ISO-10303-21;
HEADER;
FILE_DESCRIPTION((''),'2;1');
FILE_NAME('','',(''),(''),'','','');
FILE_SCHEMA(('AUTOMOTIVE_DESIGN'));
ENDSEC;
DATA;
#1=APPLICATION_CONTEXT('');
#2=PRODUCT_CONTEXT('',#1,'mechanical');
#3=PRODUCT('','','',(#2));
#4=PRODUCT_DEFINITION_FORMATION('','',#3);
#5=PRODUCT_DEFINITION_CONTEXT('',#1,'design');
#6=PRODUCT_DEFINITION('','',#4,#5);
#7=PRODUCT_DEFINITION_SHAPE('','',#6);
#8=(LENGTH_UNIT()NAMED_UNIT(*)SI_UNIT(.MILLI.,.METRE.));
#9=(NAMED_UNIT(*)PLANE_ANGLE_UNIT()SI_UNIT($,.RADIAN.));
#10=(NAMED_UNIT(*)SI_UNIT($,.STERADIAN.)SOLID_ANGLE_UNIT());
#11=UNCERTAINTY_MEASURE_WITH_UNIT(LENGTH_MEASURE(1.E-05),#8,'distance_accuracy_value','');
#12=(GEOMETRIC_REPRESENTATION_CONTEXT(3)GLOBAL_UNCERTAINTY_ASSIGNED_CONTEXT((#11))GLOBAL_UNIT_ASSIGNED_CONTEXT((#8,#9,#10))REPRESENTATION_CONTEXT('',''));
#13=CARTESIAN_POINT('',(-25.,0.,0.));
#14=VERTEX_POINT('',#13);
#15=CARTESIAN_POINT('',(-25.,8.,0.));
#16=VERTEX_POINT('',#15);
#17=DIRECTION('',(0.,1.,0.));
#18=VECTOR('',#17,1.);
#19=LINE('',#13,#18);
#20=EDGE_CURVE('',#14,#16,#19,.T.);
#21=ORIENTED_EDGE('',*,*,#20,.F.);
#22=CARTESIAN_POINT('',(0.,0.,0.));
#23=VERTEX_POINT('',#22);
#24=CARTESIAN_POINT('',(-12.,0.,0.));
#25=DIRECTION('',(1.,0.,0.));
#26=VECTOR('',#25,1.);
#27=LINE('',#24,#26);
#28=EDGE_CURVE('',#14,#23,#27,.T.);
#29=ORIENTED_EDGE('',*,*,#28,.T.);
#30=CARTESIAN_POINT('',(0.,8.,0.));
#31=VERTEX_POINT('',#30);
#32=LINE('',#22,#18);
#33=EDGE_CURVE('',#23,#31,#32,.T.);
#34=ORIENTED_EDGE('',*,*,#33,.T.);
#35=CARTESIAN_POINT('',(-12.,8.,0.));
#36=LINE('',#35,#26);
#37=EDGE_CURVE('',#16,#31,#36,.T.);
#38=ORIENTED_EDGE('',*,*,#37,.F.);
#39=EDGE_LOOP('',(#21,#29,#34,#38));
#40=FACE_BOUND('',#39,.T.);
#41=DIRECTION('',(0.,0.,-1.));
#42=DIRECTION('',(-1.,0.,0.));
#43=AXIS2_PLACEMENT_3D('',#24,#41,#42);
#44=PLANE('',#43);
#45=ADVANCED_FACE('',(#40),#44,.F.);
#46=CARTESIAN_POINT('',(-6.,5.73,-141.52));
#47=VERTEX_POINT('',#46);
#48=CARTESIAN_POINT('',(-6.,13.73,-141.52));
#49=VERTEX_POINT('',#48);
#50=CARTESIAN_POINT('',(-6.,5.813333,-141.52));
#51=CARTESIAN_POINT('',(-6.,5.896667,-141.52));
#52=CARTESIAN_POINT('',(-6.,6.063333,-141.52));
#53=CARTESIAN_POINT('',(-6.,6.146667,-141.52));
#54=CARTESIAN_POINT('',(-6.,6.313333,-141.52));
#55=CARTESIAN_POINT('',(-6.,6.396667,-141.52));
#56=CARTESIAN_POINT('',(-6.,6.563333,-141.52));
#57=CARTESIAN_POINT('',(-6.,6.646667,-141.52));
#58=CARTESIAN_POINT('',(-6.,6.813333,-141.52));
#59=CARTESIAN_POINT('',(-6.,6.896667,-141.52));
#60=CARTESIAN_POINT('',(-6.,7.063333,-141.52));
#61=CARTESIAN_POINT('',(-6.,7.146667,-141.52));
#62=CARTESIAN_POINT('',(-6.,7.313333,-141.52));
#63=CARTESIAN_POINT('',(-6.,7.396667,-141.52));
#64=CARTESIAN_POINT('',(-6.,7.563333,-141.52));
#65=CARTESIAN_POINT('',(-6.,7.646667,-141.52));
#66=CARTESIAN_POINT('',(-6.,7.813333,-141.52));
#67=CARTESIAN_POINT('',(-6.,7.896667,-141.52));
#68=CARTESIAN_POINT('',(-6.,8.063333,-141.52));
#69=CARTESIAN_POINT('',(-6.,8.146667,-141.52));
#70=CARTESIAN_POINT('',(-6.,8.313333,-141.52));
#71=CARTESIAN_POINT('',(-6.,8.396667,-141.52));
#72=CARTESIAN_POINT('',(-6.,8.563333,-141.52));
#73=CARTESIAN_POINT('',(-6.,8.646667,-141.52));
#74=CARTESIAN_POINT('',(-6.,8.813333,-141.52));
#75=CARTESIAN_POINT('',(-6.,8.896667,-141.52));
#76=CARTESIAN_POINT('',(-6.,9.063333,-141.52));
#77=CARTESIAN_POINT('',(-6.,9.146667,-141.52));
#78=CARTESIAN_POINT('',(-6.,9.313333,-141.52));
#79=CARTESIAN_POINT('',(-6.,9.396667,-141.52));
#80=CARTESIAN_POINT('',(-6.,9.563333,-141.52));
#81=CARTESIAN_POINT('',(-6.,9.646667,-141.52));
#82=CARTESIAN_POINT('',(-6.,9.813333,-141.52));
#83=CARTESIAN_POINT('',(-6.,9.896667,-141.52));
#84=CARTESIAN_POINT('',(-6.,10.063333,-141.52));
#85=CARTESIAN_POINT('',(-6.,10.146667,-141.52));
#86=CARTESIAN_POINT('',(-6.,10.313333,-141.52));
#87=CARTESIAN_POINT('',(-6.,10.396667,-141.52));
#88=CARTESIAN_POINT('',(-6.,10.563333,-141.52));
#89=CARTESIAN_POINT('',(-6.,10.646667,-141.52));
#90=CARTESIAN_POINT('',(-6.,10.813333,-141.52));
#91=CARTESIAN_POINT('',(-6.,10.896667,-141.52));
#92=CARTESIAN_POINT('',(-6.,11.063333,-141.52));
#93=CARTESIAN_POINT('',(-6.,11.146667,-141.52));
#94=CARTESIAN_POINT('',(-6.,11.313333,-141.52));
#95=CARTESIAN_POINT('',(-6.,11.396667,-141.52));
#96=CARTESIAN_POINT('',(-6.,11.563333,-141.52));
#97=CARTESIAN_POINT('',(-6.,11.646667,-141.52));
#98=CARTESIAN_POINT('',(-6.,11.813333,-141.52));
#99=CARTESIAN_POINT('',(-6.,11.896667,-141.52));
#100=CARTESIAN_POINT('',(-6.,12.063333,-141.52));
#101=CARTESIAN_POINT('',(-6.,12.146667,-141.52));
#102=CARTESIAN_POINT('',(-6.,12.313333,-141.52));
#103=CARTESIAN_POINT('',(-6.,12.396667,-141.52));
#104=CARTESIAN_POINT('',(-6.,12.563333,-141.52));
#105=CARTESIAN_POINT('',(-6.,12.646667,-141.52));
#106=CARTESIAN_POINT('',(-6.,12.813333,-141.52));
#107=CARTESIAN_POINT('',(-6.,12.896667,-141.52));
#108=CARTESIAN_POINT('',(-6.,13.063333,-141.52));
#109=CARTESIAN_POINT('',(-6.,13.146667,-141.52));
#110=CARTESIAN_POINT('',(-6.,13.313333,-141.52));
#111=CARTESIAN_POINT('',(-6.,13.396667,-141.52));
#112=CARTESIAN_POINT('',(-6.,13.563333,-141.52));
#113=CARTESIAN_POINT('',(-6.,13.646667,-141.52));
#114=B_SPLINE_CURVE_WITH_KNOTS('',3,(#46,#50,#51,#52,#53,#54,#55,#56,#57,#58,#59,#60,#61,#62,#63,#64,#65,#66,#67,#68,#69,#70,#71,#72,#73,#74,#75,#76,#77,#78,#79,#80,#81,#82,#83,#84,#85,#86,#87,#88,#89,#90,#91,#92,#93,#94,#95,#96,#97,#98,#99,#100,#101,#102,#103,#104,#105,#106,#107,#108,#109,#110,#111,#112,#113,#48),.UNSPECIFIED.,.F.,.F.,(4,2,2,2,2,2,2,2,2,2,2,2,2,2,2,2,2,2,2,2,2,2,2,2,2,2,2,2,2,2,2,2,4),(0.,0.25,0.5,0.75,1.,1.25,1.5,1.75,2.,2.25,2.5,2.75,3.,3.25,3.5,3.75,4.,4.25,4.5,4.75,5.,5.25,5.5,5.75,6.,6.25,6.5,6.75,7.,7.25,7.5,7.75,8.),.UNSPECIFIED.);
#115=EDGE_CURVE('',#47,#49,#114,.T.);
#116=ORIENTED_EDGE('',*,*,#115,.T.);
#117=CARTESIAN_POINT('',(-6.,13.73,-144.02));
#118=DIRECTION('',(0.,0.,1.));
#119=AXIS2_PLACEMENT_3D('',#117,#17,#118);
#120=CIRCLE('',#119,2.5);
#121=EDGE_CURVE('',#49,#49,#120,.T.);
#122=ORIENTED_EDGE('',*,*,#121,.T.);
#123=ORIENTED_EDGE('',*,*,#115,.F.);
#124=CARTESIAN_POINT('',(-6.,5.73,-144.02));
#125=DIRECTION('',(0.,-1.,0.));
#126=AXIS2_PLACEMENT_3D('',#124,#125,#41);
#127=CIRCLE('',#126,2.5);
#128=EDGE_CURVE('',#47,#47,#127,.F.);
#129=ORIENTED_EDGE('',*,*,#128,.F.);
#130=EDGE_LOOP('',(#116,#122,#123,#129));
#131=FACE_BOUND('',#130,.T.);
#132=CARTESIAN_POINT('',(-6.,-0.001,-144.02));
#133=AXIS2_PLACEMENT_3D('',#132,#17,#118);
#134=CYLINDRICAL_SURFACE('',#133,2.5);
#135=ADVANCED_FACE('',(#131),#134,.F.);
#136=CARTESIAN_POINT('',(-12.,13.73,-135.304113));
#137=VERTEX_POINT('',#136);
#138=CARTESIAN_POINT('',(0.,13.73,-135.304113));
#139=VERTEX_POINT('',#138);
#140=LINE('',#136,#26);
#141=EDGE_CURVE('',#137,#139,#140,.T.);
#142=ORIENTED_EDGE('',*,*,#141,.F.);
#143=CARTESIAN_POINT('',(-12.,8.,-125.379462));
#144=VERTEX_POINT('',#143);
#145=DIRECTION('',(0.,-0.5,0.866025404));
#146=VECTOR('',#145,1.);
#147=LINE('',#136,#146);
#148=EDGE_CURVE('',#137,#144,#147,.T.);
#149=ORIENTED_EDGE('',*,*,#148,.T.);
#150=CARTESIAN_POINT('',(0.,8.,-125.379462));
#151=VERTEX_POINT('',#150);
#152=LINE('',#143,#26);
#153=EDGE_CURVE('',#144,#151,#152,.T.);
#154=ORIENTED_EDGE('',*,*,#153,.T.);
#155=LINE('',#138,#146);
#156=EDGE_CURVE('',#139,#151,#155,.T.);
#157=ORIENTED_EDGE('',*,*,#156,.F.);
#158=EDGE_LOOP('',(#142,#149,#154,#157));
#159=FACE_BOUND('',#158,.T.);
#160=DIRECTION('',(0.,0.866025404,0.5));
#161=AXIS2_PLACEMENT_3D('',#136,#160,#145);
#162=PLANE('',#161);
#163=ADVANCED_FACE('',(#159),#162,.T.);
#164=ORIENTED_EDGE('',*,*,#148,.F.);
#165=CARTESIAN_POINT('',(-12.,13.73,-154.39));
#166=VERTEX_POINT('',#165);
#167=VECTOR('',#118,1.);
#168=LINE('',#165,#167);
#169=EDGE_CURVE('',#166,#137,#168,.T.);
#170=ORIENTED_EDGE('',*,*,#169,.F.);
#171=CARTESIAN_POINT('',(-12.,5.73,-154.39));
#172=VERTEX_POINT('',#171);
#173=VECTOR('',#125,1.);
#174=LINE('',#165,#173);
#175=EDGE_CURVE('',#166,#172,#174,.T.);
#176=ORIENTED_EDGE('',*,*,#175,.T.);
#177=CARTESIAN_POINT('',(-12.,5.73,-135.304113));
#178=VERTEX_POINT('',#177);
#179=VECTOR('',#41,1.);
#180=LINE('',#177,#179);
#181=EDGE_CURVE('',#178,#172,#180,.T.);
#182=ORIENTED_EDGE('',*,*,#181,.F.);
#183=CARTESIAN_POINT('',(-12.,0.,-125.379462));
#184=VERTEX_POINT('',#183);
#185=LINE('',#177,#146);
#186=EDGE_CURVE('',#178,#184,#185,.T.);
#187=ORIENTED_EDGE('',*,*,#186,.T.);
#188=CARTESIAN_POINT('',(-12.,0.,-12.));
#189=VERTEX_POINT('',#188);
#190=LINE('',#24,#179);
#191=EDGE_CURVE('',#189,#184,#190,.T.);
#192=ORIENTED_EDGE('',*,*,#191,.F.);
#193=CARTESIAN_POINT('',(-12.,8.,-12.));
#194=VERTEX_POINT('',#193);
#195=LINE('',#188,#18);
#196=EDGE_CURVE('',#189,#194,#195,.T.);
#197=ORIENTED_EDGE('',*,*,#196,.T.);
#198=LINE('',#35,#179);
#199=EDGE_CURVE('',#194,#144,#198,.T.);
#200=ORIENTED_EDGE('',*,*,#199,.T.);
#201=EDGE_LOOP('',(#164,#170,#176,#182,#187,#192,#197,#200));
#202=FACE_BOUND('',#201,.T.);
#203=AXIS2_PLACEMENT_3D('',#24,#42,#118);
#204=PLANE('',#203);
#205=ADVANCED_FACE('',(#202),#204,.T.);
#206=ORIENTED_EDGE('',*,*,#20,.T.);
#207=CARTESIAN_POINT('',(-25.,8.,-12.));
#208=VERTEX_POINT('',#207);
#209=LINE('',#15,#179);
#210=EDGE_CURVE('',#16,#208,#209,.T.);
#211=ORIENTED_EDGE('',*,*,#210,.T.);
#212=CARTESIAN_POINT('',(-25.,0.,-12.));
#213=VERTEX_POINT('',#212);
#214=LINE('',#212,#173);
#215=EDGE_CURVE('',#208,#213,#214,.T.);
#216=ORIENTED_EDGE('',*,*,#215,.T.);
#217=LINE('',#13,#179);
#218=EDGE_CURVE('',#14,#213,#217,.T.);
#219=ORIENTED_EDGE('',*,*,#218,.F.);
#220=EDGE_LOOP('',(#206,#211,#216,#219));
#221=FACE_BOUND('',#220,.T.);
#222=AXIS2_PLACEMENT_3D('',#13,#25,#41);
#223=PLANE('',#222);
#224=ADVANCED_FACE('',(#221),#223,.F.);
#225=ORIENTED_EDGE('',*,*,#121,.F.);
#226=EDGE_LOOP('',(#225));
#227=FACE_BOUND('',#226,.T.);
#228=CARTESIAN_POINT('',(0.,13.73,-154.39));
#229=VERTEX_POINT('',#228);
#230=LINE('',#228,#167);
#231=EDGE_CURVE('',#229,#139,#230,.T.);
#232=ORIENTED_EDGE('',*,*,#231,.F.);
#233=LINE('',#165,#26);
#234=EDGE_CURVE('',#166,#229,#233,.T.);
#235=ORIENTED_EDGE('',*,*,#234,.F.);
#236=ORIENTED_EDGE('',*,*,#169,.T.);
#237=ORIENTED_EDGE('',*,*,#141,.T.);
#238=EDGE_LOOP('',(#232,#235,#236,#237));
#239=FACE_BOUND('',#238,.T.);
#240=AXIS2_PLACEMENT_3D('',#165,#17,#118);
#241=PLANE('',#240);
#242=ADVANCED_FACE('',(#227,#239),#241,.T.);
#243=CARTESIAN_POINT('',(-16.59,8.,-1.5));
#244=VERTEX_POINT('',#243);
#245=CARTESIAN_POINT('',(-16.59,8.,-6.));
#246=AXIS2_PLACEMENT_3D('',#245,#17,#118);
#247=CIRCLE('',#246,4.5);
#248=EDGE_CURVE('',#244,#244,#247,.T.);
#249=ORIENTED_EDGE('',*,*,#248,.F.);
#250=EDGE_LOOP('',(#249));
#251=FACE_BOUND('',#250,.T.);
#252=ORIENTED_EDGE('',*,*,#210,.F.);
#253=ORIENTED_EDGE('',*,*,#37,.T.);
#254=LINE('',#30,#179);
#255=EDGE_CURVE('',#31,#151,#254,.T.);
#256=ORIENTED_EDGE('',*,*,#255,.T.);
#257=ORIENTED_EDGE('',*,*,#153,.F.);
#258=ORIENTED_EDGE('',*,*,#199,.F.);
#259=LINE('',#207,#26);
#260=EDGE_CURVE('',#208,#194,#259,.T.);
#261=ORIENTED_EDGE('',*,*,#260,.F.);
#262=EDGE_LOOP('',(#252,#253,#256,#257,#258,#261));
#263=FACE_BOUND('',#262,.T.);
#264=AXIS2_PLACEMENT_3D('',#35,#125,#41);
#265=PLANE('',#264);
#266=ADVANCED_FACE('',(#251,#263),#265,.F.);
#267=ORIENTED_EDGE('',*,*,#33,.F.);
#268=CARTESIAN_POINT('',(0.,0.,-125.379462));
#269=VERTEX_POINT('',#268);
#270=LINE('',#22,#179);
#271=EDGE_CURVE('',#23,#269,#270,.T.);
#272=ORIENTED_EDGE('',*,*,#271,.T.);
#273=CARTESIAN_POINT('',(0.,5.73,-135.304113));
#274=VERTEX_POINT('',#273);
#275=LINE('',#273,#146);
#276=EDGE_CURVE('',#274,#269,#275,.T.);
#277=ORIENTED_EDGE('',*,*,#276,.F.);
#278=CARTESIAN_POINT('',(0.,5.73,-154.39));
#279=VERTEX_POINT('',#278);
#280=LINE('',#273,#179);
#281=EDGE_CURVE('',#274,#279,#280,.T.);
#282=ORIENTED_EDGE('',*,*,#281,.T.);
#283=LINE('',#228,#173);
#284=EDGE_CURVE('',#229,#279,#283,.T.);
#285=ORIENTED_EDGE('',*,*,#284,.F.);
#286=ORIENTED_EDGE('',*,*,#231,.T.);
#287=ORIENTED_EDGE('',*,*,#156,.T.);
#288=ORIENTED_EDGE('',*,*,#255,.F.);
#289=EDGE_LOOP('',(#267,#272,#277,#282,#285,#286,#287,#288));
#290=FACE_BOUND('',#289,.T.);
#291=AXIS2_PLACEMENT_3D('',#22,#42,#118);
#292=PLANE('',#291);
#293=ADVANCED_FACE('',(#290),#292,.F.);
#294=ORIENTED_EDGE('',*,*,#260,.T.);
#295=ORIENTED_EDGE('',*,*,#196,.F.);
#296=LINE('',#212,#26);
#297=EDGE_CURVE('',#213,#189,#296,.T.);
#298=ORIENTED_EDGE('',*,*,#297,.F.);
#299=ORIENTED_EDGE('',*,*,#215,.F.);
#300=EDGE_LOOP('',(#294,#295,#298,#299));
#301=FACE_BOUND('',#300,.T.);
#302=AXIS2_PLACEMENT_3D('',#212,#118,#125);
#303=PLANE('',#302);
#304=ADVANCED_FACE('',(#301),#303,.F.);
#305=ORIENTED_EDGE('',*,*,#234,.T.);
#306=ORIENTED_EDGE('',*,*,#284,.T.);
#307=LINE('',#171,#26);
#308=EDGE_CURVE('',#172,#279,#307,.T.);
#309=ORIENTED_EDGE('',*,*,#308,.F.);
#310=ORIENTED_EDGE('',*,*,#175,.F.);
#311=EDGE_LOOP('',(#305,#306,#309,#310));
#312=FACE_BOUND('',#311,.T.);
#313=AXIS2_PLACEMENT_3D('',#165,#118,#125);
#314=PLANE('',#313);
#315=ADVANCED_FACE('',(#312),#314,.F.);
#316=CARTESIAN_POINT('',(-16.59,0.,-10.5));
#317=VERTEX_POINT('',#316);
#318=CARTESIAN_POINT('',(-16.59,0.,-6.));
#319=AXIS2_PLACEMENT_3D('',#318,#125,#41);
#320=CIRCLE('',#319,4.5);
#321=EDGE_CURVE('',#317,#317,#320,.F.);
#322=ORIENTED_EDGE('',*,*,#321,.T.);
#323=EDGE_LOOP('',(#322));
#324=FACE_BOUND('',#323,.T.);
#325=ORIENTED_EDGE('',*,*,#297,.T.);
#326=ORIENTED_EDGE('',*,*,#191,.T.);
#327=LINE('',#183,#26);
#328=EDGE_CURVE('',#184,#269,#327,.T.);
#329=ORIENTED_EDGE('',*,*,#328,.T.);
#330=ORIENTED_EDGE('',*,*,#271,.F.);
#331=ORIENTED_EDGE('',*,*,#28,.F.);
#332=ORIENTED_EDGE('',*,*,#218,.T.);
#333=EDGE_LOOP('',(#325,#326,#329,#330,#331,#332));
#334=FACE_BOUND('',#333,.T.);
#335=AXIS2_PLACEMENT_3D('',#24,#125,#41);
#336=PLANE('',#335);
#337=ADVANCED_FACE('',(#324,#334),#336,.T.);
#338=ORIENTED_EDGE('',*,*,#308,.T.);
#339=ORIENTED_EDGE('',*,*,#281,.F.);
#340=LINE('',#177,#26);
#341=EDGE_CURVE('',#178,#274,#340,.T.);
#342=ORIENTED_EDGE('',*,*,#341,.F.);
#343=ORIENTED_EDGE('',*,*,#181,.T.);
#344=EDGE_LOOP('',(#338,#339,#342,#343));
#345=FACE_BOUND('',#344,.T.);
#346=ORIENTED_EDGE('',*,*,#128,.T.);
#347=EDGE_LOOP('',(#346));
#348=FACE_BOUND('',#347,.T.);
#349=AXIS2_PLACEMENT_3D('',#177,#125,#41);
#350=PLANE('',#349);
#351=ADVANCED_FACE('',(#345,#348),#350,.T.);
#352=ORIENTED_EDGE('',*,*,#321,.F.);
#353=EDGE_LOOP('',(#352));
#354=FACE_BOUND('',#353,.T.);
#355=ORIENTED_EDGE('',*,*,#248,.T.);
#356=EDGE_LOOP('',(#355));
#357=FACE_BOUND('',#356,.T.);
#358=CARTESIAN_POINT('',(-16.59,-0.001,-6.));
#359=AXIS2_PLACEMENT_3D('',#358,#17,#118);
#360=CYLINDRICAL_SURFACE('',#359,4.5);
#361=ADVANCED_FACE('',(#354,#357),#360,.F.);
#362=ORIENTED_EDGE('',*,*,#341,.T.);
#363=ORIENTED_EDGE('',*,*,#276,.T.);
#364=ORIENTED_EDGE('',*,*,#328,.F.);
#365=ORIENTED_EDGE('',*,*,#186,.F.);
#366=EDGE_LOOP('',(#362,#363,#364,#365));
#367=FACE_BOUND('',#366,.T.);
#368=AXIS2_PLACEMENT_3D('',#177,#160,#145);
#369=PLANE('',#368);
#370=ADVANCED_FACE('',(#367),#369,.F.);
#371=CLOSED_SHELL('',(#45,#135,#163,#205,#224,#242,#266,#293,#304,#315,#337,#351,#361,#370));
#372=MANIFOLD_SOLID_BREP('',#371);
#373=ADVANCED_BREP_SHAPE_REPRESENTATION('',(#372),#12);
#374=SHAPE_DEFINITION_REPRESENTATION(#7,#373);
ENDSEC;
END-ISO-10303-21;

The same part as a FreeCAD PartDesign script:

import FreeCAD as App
import Part
import Sketcher

V = App.Vector
Q = App.Units.Quantity


def add_polygon(sketch, points):
    """Adds a closed chain of lines whose ends are joined by coincident constraints."""
    first, n = sketch.GeometryCount, len(points)
    for a, b in zip(points, points[1:] + points[:1]):
        sketch.addGeometry(Part.LineSegment(App.Vector(*a, 0), App.Vector(*b, 0)), False)
    for i in range(n):
        sketch.addConstraint(Sketcher.Constraint("Coincident", first + i, 2, first + (i + 1) % n, 1))

doc = App.newDocument("Part")
body = doc.addObject("PartDesign::Body", "Body")

# Sketch on YZ plane
sketch1 = body.newObject("Sketcher::SketchObject", "Sketch")
sketch1.AttachmentSupport = (doc.getObject("YZ_Plane"), [""])
sketch1.MapMode = "FlatFace"
add_polygon(sketch1, [(0, 0), (0, -125), (6, -135), (6, -154), (14, -154), (14, -135), (8, -125), (8, 0)])  # lines 0-7
sketch1.addConstraint([
    Sketcher.Constraint("Vertical", 0),
    Sketcher.Constraint("Vertical", 2),
    Sketcher.Constraint("Horizontal", 3),
    Sketcher.Constraint("Vertical", 4),
    Sketcher.Constraint("Vertical", 6),
    Sketcher.Constraint("Horizontal", 7),
    Sketcher.Constraint("Coincident", 7, 2, -1, 1),
    Sketcher.Constraint("Parallel", 1, 5),
    Sketcher.Constraint("Horizontal", 1, 2, 4, 2),
    Sketcher.Constraint("Horizontal", 0, 2, 5, 2),
    Sketcher.Constraint("DistanceX", 3, 1, 3, 2, 8.0),
    Sketcher.Constraint("Angle", 1, Q("-60 deg")),
    Sketcher.Constraint("Distance", 1, 11.46),
    Sketcher.Constraint("DistanceY", 2, 2, -1, 1, 154.39),
    Sketcher.Constraint("DistanceY", 0, 2, 0, 1, 125.379462),
])
pad1 = body.newObject("PartDesign::Pad", "Pad")
pad1.Profile = sketch1
pad1.Length = 12
pad1.Reversed = True

# Sketch on YZ plane
sketch2 = body.newObject("Sketcher::SketchObject", "Sketch001")
sketch2.AttachmentSupport = (doc.getObject("YZ_Plane"), [""])
sketch2.MapMode = "FlatFace"
add_polygon(sketch2, [(8, 0), (0, 0), (0, -12), (8, -12)])  # lines 0-3
sketch2.addConstraint([
    Sketcher.Constraint("Horizontal", 0),
    Sketcher.Constraint("Vertical", 1),
    Sketcher.Constraint("Horizontal", 2),
    Sketcher.Constraint("Vertical", 3),
    Sketcher.Constraint("Coincident", 0, 2, -1, 1),
    Sketcher.Constraint("DistanceX", 0, 2, 0, 1, 8.0),
    Sketcher.Constraint("DistanceY", 1, 2, 1, 1, 12.0),
])
pad2 = body.newObject("PartDesign::Pad", "Pad001")
pad2.Profile = sketch2
pad2.Length = 25
pad2.Reversed = True

# Sketch on XZ plane
sketch3 = body.newObject("Sketcher::SketchObject", "Sketch002")
sketch3.AttachmentSupport = (doc.getObject("XZ_Plane"), [""])
sketch3.MapMode = "FlatFace"
sketch3.AttachmentOffset = App.Placement(V(0, 0, -8), App.Rotation())
sketch3.addGeometry(Part.Circle(V(-16.6, -6, 0), V(0, 0, 1), 4.5), False)
sketch3.addConstraint([
    Sketcher.Constraint("Diameter", 0, 9.0),
    Sketcher.Constraint("DistanceY", 0, 3, -1, 1, 6.0),
    Sketcher.Constraint("DistanceX", 0, 3, -1, 1, 16.59),
])
pocket1 = body.newObject("PartDesign::Pocket", "Pocket")
pocket1.Profile = sketch3
pocket1.Length = 8
pocket1.Reversed = True

# Sketch on XZ plane
sketch4 = body.newObject("Sketcher::SketchObject", "Sketch003")
sketch4.AttachmentSupport = (doc.getObject("XZ_Plane"), [""])
sketch4.MapMode = "FlatFace"
sketch4.AttachmentOffset = App.Placement(V(0, 0, -13.73), App.Rotation())
sketch4.addGeometry(Part.Circle(V(-6, -144, 0), V(0, 0, 1), 2.5), False)
sketch4.addConstraint([
    Sketcher.Constraint("Diameter", 0, 5.0),
    Sketcher.Constraint("DistanceX", 0, 3, -1, 1, 6.0),
    Sketcher.Constraint("DistanceY", 0, 3, -1, 1, 144.02),
])
pocket2 = body.newObject("PartDesign::Pocket", "Pocket001")
pocket2.Profile = sketch4
pocket2.Length = 8
pocket2.Reversed = True

doc.recompute()
